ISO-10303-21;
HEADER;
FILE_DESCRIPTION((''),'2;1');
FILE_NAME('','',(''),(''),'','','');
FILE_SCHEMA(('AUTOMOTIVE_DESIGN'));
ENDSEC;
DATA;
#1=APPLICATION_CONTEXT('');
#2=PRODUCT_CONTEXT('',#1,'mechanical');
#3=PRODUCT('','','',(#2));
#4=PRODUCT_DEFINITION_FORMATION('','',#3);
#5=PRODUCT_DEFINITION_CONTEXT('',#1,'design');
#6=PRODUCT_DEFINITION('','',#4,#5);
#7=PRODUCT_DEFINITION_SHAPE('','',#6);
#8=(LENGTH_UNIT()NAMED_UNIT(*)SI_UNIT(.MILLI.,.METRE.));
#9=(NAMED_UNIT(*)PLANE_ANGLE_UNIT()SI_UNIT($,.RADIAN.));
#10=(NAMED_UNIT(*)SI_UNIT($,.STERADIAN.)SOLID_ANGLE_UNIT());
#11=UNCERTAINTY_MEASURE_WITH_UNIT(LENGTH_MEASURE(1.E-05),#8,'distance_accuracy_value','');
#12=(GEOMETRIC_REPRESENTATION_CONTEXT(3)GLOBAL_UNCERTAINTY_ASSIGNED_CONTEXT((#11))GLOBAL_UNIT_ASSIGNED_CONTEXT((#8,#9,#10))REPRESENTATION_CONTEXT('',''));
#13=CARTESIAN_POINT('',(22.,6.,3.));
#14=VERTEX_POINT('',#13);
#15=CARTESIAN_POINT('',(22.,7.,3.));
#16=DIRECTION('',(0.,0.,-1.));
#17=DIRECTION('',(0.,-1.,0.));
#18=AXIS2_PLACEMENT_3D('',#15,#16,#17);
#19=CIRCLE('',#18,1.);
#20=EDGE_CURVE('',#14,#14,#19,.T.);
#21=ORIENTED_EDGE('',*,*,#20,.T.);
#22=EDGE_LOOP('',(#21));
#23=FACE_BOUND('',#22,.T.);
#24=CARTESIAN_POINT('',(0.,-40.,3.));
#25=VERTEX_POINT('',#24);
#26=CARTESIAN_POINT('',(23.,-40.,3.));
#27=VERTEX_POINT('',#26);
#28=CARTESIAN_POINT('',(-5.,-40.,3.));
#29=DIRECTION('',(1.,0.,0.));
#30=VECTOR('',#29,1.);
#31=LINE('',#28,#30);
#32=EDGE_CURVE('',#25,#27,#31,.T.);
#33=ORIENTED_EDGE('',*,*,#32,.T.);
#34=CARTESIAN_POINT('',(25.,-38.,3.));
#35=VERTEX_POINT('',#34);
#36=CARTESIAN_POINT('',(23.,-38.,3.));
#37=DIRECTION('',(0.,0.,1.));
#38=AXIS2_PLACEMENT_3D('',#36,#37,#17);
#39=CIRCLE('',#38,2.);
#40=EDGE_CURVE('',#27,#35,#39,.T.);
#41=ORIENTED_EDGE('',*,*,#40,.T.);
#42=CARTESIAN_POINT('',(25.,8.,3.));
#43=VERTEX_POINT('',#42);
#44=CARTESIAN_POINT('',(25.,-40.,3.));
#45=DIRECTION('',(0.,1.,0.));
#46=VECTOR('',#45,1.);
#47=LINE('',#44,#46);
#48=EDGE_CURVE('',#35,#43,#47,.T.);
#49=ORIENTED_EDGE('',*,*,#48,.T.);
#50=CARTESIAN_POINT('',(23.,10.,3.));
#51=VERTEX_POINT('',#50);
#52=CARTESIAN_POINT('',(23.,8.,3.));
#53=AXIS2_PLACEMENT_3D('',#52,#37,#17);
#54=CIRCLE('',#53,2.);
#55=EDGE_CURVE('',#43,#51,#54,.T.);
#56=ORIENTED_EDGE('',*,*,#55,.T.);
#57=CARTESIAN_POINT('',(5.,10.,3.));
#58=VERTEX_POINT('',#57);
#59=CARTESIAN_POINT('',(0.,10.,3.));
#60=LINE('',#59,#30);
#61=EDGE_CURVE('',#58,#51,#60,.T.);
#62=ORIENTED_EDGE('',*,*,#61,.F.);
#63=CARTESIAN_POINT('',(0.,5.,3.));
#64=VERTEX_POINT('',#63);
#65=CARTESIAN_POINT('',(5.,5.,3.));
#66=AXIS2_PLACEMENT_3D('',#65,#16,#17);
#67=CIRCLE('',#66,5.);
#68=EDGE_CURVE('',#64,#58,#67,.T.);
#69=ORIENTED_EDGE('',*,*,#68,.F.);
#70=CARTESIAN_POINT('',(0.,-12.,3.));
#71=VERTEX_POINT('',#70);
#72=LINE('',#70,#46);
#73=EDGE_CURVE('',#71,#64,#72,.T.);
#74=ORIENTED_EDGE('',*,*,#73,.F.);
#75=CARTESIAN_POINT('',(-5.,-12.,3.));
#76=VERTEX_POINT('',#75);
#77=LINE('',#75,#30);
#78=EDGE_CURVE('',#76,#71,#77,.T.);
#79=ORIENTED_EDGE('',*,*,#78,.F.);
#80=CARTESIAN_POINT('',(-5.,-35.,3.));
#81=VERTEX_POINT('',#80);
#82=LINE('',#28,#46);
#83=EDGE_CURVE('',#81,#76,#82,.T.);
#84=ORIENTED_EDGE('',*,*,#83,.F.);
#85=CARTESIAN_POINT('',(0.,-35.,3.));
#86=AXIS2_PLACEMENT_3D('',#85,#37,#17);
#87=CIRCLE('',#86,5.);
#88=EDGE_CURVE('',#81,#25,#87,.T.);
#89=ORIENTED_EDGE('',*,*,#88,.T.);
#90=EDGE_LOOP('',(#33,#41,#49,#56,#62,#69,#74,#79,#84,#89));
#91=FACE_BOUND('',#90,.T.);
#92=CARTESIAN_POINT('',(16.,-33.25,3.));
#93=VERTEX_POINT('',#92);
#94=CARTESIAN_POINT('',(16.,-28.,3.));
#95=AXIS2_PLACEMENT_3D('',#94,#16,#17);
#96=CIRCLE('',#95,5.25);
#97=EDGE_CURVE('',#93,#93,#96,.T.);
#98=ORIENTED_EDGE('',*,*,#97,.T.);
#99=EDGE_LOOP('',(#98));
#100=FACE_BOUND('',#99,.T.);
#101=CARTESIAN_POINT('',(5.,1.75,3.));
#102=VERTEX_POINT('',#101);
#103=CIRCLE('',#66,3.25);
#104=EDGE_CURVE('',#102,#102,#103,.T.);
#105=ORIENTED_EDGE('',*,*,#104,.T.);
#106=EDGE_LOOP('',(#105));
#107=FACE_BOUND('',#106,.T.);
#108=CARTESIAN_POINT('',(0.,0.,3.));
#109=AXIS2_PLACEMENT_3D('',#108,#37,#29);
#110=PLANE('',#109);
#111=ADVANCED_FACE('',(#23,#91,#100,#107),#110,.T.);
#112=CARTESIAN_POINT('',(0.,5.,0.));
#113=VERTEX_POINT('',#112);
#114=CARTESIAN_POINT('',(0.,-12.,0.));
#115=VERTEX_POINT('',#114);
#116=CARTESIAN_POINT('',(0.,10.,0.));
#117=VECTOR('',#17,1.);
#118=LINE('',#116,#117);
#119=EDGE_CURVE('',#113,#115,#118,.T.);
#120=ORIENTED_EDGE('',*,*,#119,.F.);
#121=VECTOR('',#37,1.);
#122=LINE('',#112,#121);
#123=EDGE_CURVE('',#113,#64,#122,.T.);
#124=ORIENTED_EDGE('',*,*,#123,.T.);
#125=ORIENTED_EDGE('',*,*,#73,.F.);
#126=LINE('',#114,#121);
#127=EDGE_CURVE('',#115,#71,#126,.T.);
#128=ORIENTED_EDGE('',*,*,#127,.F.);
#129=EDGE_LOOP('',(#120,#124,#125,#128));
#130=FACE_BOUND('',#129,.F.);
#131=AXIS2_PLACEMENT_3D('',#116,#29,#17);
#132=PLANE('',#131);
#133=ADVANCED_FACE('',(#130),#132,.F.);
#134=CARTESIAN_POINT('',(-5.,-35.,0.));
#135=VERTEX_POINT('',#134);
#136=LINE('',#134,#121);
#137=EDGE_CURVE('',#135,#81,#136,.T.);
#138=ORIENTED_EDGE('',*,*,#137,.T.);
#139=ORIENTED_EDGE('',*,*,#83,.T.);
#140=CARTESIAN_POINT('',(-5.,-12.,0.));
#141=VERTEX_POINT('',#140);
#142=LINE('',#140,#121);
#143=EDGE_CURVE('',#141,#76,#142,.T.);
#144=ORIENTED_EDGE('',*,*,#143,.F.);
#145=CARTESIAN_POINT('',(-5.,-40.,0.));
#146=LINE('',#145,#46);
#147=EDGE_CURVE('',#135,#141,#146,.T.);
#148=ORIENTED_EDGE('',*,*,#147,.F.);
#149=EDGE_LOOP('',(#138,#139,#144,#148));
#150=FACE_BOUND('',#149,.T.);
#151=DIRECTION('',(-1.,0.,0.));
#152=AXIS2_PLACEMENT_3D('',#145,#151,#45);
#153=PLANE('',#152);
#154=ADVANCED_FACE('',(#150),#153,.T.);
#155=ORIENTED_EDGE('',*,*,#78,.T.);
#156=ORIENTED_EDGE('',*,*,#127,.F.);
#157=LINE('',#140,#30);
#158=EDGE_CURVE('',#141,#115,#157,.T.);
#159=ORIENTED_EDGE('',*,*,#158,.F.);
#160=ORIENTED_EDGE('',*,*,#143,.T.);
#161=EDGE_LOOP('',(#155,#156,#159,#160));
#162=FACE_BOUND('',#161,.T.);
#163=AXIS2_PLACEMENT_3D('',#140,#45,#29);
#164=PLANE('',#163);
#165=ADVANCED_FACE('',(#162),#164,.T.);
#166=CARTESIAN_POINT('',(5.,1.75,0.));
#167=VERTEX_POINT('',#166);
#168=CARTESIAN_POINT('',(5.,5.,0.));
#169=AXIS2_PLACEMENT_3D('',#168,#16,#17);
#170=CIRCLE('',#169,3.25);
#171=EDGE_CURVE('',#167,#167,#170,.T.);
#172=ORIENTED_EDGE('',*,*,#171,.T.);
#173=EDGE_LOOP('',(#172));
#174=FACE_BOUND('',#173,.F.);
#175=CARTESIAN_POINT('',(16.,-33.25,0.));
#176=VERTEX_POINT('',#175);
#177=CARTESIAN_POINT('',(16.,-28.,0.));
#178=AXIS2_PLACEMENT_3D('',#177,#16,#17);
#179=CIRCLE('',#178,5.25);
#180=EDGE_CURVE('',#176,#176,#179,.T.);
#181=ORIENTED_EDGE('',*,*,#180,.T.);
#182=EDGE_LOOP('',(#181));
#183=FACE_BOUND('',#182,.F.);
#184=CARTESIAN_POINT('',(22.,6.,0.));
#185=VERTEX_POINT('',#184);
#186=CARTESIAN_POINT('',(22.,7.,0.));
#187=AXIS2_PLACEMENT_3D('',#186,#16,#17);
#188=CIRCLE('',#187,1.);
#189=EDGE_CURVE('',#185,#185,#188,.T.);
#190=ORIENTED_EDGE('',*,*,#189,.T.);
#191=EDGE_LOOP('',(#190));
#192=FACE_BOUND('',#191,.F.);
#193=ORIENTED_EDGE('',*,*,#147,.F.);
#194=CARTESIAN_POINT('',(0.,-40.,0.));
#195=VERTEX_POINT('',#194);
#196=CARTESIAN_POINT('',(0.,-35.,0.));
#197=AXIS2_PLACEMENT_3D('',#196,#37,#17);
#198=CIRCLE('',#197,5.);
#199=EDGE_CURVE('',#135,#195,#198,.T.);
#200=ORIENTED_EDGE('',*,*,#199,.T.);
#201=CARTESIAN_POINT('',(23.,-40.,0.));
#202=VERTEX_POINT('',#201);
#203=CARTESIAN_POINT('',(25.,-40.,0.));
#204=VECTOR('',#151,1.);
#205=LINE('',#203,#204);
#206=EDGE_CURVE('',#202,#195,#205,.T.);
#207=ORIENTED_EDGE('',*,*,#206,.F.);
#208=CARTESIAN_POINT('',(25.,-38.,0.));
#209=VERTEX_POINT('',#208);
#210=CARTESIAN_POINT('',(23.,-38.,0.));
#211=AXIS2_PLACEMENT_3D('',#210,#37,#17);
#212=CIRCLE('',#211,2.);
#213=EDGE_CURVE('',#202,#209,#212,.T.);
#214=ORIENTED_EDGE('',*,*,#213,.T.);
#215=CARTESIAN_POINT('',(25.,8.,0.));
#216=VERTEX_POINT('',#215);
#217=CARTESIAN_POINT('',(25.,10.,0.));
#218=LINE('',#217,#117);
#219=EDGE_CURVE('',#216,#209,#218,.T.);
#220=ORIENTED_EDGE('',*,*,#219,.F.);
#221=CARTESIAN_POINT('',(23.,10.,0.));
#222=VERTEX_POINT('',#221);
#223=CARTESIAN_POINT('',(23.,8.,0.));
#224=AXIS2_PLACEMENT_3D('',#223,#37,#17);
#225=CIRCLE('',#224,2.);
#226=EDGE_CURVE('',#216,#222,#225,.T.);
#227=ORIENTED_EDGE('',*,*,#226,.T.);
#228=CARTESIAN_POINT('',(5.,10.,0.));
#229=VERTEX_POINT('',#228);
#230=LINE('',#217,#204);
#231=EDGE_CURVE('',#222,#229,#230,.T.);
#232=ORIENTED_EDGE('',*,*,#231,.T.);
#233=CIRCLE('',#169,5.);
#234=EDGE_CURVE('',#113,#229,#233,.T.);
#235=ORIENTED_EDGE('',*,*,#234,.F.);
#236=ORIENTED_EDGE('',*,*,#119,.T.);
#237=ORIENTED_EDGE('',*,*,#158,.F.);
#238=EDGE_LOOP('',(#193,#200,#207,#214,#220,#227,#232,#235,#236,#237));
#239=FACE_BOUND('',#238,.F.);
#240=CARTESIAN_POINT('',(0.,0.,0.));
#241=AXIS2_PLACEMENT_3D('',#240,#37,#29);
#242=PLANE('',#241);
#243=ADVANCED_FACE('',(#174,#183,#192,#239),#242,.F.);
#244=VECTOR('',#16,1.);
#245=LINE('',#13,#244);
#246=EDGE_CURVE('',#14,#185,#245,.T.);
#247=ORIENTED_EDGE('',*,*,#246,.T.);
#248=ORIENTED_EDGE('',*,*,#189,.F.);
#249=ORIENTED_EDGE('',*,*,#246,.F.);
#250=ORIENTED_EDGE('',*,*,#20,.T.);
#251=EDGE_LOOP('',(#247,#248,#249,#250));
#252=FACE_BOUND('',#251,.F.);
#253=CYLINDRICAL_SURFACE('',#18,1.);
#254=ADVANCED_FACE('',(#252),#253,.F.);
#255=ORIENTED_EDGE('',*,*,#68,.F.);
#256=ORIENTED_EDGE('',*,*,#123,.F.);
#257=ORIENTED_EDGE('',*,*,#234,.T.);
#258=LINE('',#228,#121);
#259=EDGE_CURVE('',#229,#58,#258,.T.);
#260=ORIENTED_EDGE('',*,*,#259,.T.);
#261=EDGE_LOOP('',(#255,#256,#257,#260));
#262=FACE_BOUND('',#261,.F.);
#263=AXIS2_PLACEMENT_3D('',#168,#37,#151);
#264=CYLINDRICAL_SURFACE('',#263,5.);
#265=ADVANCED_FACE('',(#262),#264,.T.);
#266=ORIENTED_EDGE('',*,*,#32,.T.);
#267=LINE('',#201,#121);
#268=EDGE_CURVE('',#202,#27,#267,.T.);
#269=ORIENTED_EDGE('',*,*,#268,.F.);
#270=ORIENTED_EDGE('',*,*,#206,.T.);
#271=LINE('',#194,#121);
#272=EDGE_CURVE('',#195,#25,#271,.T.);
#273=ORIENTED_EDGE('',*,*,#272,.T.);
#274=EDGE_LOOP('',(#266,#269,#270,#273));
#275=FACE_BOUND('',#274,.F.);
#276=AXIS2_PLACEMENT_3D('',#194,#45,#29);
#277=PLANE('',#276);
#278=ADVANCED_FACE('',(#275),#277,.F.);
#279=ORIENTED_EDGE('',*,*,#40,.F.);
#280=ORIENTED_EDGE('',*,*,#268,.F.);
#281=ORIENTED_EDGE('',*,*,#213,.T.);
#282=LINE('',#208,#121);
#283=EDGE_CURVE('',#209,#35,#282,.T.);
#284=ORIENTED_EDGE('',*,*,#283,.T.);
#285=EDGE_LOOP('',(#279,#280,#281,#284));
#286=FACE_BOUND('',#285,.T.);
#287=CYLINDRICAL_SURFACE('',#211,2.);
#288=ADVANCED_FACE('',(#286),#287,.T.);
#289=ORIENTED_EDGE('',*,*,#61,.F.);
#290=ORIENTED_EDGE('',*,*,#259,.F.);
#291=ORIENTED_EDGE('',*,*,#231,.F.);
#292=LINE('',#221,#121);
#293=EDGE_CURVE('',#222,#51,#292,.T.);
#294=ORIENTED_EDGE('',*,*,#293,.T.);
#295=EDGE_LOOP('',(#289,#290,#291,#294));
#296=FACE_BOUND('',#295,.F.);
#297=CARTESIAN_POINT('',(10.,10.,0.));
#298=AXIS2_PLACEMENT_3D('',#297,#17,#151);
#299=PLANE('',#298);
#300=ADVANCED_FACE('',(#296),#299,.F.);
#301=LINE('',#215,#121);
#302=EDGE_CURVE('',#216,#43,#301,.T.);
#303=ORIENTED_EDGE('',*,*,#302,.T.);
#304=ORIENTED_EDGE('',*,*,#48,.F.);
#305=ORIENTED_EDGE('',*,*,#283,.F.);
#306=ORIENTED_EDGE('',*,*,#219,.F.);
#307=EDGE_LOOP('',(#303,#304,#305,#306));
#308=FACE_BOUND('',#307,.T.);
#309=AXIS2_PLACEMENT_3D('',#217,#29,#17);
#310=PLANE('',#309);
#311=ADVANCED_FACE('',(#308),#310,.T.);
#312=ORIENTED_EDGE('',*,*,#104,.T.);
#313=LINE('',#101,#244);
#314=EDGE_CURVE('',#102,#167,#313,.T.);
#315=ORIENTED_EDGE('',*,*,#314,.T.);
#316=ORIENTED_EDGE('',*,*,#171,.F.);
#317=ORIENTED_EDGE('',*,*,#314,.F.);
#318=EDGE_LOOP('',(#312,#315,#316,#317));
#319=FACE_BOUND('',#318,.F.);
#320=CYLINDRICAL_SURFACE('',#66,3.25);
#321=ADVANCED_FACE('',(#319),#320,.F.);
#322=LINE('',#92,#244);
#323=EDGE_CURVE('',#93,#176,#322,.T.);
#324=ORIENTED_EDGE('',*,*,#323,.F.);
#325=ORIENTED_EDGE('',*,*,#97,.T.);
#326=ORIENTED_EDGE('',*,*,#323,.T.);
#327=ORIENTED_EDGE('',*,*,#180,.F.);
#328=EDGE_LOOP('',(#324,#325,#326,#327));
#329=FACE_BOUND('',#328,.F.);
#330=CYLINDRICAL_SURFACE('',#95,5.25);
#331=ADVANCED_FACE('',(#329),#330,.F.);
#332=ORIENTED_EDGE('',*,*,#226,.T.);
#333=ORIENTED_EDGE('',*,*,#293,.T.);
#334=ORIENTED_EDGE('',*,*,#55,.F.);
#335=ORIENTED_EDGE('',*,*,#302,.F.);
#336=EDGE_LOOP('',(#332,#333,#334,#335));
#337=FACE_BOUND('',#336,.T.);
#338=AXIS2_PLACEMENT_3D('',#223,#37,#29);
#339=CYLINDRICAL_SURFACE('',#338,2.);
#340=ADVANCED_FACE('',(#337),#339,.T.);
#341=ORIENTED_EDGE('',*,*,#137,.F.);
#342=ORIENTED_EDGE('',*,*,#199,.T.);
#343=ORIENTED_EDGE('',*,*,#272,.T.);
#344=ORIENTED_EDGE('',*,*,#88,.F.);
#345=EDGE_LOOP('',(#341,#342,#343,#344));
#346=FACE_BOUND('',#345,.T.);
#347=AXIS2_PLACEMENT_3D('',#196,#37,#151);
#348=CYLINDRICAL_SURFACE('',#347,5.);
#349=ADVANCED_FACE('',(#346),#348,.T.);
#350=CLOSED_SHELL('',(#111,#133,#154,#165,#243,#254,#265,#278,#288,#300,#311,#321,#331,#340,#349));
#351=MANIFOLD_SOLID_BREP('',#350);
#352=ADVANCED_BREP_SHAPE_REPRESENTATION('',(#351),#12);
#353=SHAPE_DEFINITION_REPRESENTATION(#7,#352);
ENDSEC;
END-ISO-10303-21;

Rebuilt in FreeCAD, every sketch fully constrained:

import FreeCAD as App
import Part
import Sketcher

V = App.Vector


def edges_at(feature, points):
    """Names of the edges that pass closest to the given points."""
    edges = feature.Shape.Edges
    near = lambda p: min(range(len(edges)), key=lambda i: edges[i].distToShape(Part.Vertex(*p))[0])
    return sorted({f"Edge{near(p) + 1}" for p in points})


def add_polygon(sketch, points):
    """Adds a closed chain of lines whose ends are joined by coincident constraints."""
    first, n = sketch.GeometryCount, len(points)
    for a, b in zip(points, points[1:] + points[:1]):
        sketch.addGeometry(Part.LineSegment(App.Vector(*a, 0), App.Vector(*b, 0)), False)
    for i in range(n):
        sketch.addConstraint(Sketcher.Constraint("Coincident", first + i, 2, first + (i + 1) % n, 1))

doc = App.newDocument("Part")
body = doc.addObject("PartDesign::Body", "Body")

# Sketch on XY plane
sketch1 = body.newObject("Sketcher::SketchObject", "Sketch")
sketch1.AttachmentSupport = (doc.getObject("XY_Plane"), [""])
sketch1.MapMode = "FlatFace"
add_polygon(sketch1, [(0, 10), (0, -12), (-5, -12), (-5, -40), (25, -40), (25, 10)])  # lines 0-5
sketch1.addConstraint(Sketcher.Constraint("Vertical", 0))
sketch1.addConstraint(Sketcher.Constraint("Horizontal", 1))
sketch1.addConstraint(Sketcher.Constraint("Vertical", 2))
sketch1.addConstraint(Sketcher.Constraint("Horizontal", 3))
sketch1.addConstraint(Sketcher.Constraint("Vertical", 4))
sketch1.addConstraint(Sketcher.Constraint("Horizontal", 5))
sketch1.addConstraint(Sketcher.Constraint("PointOnObject", 0, 2, -2))
sketch1.addConstraint(Sketcher.Constraint("DistanceX", 1, 2, 1, 1, 5.0))
sketch1.addConstraint(Sketcher.Constraint("DistanceY", 0, 2, 0, 1, 22.0))
sketch1.addConstraint(Sketcher.Constraint("DistanceY", 2, 2, 2, 1, 28.0))
sketch1.addConstraint(Sketcher.Constraint("DistanceY", -1, 1, 4, 2, 10.0))
sketch1.addConstraint(Sketcher.Constraint("DistanceX", 3, 1, 3, 2, 30.0))
pad1 = body.newObject("PartDesign::Pad", "Pad")
pad1.Profile = sketch1
pad1.Length = 3
doc.recompute()

fillet = body.newObject("PartDesign::Fillet", "Fillet")
fillet.Base = (pad1, edges_at(pad1, [(0, 10, 1.5)]))
fillet.Radius = 5
doc.recompute()

fillet2 = body.newObject("PartDesign::Fillet", "Fillet001")
fillet2.Base = (fillet, edges_at(fillet, [(-5, -40, 1.5)]))
fillet2.Radius = 5

# Sketch on XY plane
sketch2 = body.newObject("Sketcher::SketchObject", "Sketch001")
sketch2.AttachmentSupport = (doc.getObject("XY_Plane"), [""])
sketch2.MapMode = "FlatFace"
sketch2.AttachmentOffset = App.Placement(V(0, 0, 3), App.Rotation())
sketch2.addGeometry(Part.Circle(V(22, 7, 0), V(0, 0, 1), 1), False)
sketch2.addConstraint(Sketcher.Constraint("Diameter", 0, 2.0))
sketch2.addConstraint(Sketcher.Constraint("DistanceX", -1, 1, 0, 3, 22.0))
sketch2.addConstraint(Sketcher.Constraint("DistanceY", -1, 1, 0, 3, 7.0))
doc.recompute()
hole = body.newObject("PartDesign::Hole", "Hole")
hole.Profile = sketch2
hole.ThreadType = "None"
hole.Diameter = 2
hole.DepthType = "ThroughAll"

# Sketch on XY plane
sketch3 = body.newObject("Sketcher::SketchObject", "Sketch002")
sketch3.AttachmentSupport = (doc.getObject("XY_Plane"), [""])
sketch3.MapMode = "FlatFace"
sketch3.AttachmentOffset = App.Placement(V(0, 0, 3), App.Rotation())
sketch3.addGeometry(Part.Circle(V(5, 5, 0), V(0, 0, 1), 3.2), False)
sketch3.addConstraint(Sketcher.Constraint("Diameter", 0, 6.5))
sketch3.addConstraint(Sketcher.Constraint("DistanceX", -1, 1, 0, 3, 5.0))
sketch3.addConstraint(Sketcher.Constraint("DistanceY", -1, 1, 0, 3, 5.0))
doc.recompute()
hole2 = body.newObject("PartDesign::Hole", "Hole001")
hole2.Profile = sketch3
hole2.ThreadType = "None"
hole2.Diameter = 6.5
hole2.DepthType = "ThroughAll"
doc.recompute()

fillet3 = body.newObject("PartDesign::Fillet", "Fillet002")
fillet3.Base = (hole2, edges_at(hole2, [(25, 10, 1.5), (25, -40, 1.5)]))
fillet3.Radius = 2

# Sketch on XY plane
sketch4 = body.newObject("Sketcher::SketchObject", "Sketch003")
sketch4.AttachmentSupport = (doc.getObject("XY_Plane"), [""])
sketch4.MapMode = "FlatFace"
sketch4.AttachmentOffset = App.Placement(V(0, 0, 3), App.Rotation())
sketch4.addGeometry(Part.Circle(V(16, -28, 0), V(0, 0, 1), 5), False)
sketch4.addConstraint(Sketcher.Constraint("Diameter", 0, 10.5))
sketch4.addConstraint(Sketcher.Constraint("DistanceX", -1, 1, 0, 3, 16.0))
sketch4.addConstraint(Sketcher.Constraint("DistanceY", 0, 3, -1, 1, 28.0))
doc.recompute()
hole3 = body.newObject("PartDesign::Hole", "Hole002")
hole3.Profile = sketch4
hole3.ThreadType = "None"
hole3.Diameter = 10.5
hole3.DepthType = "ThroughAll"

doc.recompute()
